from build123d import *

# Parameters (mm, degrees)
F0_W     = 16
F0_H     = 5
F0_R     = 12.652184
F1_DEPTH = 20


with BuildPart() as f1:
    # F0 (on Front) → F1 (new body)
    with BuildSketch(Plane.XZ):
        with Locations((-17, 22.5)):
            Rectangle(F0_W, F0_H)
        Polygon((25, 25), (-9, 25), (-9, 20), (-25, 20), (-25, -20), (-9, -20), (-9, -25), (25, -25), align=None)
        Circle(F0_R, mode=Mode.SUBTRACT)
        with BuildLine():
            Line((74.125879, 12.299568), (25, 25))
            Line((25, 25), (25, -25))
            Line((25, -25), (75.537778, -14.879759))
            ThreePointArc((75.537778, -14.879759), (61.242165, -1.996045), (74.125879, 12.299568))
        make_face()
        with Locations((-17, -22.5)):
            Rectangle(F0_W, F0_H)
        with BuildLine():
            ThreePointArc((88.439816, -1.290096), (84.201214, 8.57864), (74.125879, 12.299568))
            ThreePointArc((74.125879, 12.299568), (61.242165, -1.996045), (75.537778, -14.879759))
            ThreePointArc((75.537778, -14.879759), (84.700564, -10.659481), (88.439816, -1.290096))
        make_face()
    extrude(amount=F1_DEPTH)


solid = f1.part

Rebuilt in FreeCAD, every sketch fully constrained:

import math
import FreeCAD as App
import Part
import Sketcher

doc = App.newDocument("Part")
body = doc.addObject("PartDesign::Body", "Body")

# Sketch on XZ plane
sketch1 = body.newObject("Sketcher::SketchObject", "Sketch")
sketch1.AttachmentSupport = (doc.getObject("XZ_Plane"), [""])
sketch1.MapMode = "FlatFace"
sketch1.addGeometry([
    Part.LineSegment(App.Vector(-25, 25, 0), App.Vector(-25, -25, 0)),  # 0
    Part.LineSegment(App.Vector(-25, -25, 0), App.Vector(25, -25, 0)),  # 1
    Part.LineSegment(App.Vector(25, -25, 0), App.Vector(76, -15, 0)),  # 2
    Part.ArcOfCircle(Part.Circle(App.Vector(75, -1, 0), App.Vector(0, 0, 1), 14), math.radians(-87), math.radians(0)),  # 3
    Part.ArcOfCircle(Part.Circle(App.Vector(75, -1, 0), App.Vector(0, 0, 1), 14), math.radians(0), math.radians(93)),  # 4
    Part.LineSegment(App.Vector(74, 12, 0), App.Vector(25, 25, 0)),  # 5
    Part.LineSegment(App.Vector(25, 25, 0), App.Vector(-25, 25, 0)),  # 6
    Part.Circle(App.Vector(0, 0, 0), App.Vector(0, 0, 1), 13),  # 7
], False)
sketch1.addConstraint([
    Sketcher.Constraint("Coincident", 0, 2, 1, 1),
    Sketcher.Constraint("Coincident", 1, 2, 2, 1),
    Sketcher.Constraint("Coincident", 2, 2, 3, 1),
    Sketcher.Constraint("Tangent", 3, 2, 4, 1),
    Sketcher.Constraint("Coincident", 4, 2, 5, 1),
    Sketcher.Constraint("Coincident", 5, 2, 6, 1),
    Sketcher.Constraint("Coincident", 6, 2, 0, 1),
    Sketcher.Constraint("Vertical", 0),
    Sketcher.Constraint("Horizontal", 1),
    Sketcher.Constraint("Horizontal", 6),
    Sketcher.Constraint("Coincident", 7, 3, -1, 1),
    Sketcher.Constraint("Equal", 3, 4),
    Sketcher.Constraint("Symmetric", 0, 2, 5, 2, -1, 1),
    Sketcher.Constraint("Horizontal", 4, 3, 3, 2),
    Sketcher.Constraint("Vertical", 1, 2, 5, 2),
    Sketcher.Constraint("Equal", 6, 0),
    Sketcher.Constraint("DistanceX", 1, 1, 1, 2, 50.0),
    Sketcher.Constraint("Diameter", 7, 25.304368),
    Sketcher.Constraint("Radius", 3, 13.607987),
    Sketcher.Constraint("DistanceX", 4, 2, 2, 2, 1.411899),
    Sketcher.Constraint("Distance", 5, 50.741038),
    Sketcher.Constraint("DistanceX", -1, 1, 3, 3, 74.831829),
    Sketcher.Constraint("DistanceX", -1, 1, 2, 2, 75.537778),
])
pad1 = body.newObject("PartDesign::Pad", "Pad")
pad1.Profile = sketch1
pad1.Length = 20

doc.recompute()
